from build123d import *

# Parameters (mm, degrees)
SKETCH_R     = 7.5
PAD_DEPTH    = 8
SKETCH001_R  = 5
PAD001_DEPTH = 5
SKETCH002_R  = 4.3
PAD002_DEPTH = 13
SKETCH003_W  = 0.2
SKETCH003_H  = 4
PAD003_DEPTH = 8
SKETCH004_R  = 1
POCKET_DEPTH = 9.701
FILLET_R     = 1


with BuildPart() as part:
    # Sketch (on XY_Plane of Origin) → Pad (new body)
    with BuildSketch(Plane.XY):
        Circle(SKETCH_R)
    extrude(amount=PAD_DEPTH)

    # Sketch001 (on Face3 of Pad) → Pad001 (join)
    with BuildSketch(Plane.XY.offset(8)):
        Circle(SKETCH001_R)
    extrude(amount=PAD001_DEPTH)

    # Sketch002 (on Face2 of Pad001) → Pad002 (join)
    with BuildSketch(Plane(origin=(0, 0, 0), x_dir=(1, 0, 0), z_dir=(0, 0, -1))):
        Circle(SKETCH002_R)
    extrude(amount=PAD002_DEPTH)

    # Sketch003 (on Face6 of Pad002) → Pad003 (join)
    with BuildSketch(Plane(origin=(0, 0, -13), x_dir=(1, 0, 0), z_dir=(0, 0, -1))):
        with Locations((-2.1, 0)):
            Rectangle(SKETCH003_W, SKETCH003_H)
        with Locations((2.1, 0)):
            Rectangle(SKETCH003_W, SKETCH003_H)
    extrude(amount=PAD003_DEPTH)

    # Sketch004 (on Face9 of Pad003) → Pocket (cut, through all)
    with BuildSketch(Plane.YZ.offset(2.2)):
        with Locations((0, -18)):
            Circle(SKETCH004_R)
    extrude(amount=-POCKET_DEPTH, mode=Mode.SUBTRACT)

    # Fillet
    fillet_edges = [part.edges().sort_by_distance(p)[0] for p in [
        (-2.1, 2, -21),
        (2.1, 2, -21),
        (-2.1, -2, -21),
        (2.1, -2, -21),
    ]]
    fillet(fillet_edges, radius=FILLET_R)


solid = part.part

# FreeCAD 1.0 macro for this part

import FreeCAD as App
import Part
import Sketcher
from FreeCAD import Vector


def edges_at(feature, points):
    """Names of the edges that pass closest to the given points."""
    edges = feature.Shape.Edges
    near = lambda p: min(range(len(edges)), key=lambda i: edges[i].distToShape(Part.Vertex(*p))[0])
    return sorted({f"Edge{near(p) + 1}" for p in points})

doc = App.newDocument("Part")
body = doc.addObject("PartDesign::Body", "Body")

sketch1 = doc.addObject("Sketcher::SketchObject", "Sketch")
body.addObject(sketch1)
sketch1.AttachmentSupport = (doc.XY_Plane, [""])
sketch1.MapMode = "FlatFace"
sketch1.addGeometry(Part.Circle(Vector(0, 0, 0), Vector(0, 0, 1), 7.5), False)
sketch1.addConstraint([
    Sketcher.Constraint("Coincident", 0, 3, -1, 1),
    Sketcher.Constraint("Diameter", 0, 15.0),
])
pad1 = doc.addObject("PartDesign::Pad", "Pad")
body.addObject(pad1)
pad1.Profile = sketch1
pad1.Length = 8

sketch2 = doc.addObject("Sketcher::SketchObject", "Sketch001")
body.addObject(sketch2)
sketch2.AttachmentSupport = (doc.XY_Plane, [""])
sketch2.MapMode = "FlatFace"
sketch2.AttachmentOffset = App.Placement(Vector(0, 0, 8), App.Rotation())
sketch2.addGeometry(Part.Circle(Vector(0, 0, 0), Vector(0, 0, 1), 5), False)
sketch2.addConstraint([
    Sketcher.Constraint("Coincident", 0, 3, -1, 1),
    Sketcher.Constraint("Diameter", 0, 10.0),
])
pad2 = doc.addObject("PartDesign::Pad", "Pad001")
body.addObject(pad2)
pad2.Profile = sketch2
pad2.Length = 5

sketch3 = doc.addObject("Sketcher::SketchObject", "Sketch002")
body.addObject(sketch3)
sketch3.AttachmentSupport = (doc.XY_Plane, [""])
sketch3.MapMode = "FlatFace"
sketch3.addGeometry(Part.Circle(Vector(0, 0, 0), Vector(0, 0, 1), 4.3), False)
sketch3.addConstraint([
    Sketcher.Constraint("Coincident", 0, 3, -1, 1),
    Sketcher.Constraint("Diameter", 0, 8.6),
])
pad3 = doc.addObject("PartDesign::Pad", "Pad002")
body.addObject(pad3)
pad3.Profile = sketch3
pad3.Length = 13
pad3.Reversed = True

sketch4 = doc.addObject("Sketcher::SketchObject", "Sketch003")
body.addObject(sketch4)
sketch4.AttachmentSupport = (doc.XY_Plane, [""])
sketch4.MapMode = "FlatFace"
sketch4.AttachmentOffset = App.Placement(Vector(0, 0, -13), App.Rotation())
sketch4.addGeometry([
    Part.LineSegment(Vector(-2.2, -2, 0), Vector(-2.2, 2, 0)),
    Part.LineSegment(Vector(-2.2, 2, 0), Vector(-2, 2, 0)),
    Part.LineSegment(Vector(-2, 2, 0), Vector(-2, -2, 0)),
    Part.LineSegment(Vector(-2, -2, 0), Vector(-2.2, -2, 0)),
    Part.LineSegment(Vector(2, -2, 0), Vector(2, 2, 0)),
    Part.LineSegment(Vector(2, 2, 0), Vector(2.2, 2, 0)),
    Part.LineSegment(Vector(2.2, 2, 0), Vector(2.2, -2, 0)),
    Part.LineSegment(Vector(2.2, -2, 0), Vector(2, -2, 0)),
], False)
sketch4.addConstraint([
    Sketcher.Constraint("Coincident", 0, 2, 1, 1),
    Sketcher.Constraint("Coincident", 1, 2, 2, 1),
    Sketcher.Constraint("Coincident", 2, 2, 3, 1),
    Sketcher.Constraint("Coincident", 3, 2, 0, 1),
    Sketcher.Constraint("Coincident", 4, 2, 5, 1),
    Sketcher.Constraint("Coincident", 5, 2, 6, 1),
    Sketcher.Constraint("Coincident", 6, 2, 7, 1),
    Sketcher.Constraint("Coincident", 7, 2, 4, 1),
    Sketcher.Constraint("Vertical", 0),
    Sketcher.Constraint("Horizontal", 1),
    Sketcher.Constraint("Vertical", 2),
    Sketcher.Constraint("Horizontal", 3),
    Sketcher.Constraint("Vertical", 4),
    Sketcher.Constraint("Horizontal", 5),
    Sketcher.Constraint("Vertical", 6),
    Sketcher.Constraint("Horizontal", 7),
    Sketcher.Constraint("Symmetric", 2, 2, 4, 2, -1, 1),
    Sketcher.Constraint("Symmetric", 0, 2, 6, 2, -1, 1),
    Sketcher.Constraint("Horizontal", 1, 2, 4, 2),
    Sketcher.Constraint("DistanceY", 0, 1, 0, 2, 4.0),
    Sketcher.Constraint("DistanceX", 1, 1, 1, 2, 0.2),
    Sketcher.Constraint("DistanceX", 1, 2, -1, 1, 2.0),
])
pad4 = doc.addObject("PartDesign::Pad", "Pad003")
body.addObject(pad4)
pad4.Profile = sketch4
pad4.Length = 8
pad4.Reversed = True

sketch5 = doc.addObject("Sketcher::SketchObject", "Sketch004")
body.addObject(sketch5)
sketch5.AttachmentSupport = (doc.YZ_Plane, [""])
sketch5.MapMode = "FlatFace"
sketch5.AttachmentOffset = App.Placement(Vector(0, 0, 2.2), App.Rotation())
sketch5.addGeometry(Part.Circle(Vector(0, -18, 0), Vector(0, 0, 1), 1), False)
sketch5.addConstraint([
    Sketcher.Constraint("PointOnObject", 0, 3, -2),
    Sketcher.Constraint("Diameter", 0, 2.0),
    Sketcher.Constraint("DistanceY", 0, 3, -1, 1, 18.0),
])
pocket1 = doc.addObject("PartDesign::Pocket", "Pocket")
body.addObject(pocket1)
pocket1.Profile = sketch5
pocket1.Type = "ThroughAll"
doc.recompute()

fillet = doc.addObject("PartDesign::Fillet", "Fillet")
body.addObject(fillet)
fillet.Base = (pocket1, edges_at(pocket1, [
    (-2.1, 2, -21),
    (2.1, 2, -21),
    (-2.1, -2, -21),
    (2.1, -2, -21),
]))
fillet.Radius = 1

doc.recompute()
